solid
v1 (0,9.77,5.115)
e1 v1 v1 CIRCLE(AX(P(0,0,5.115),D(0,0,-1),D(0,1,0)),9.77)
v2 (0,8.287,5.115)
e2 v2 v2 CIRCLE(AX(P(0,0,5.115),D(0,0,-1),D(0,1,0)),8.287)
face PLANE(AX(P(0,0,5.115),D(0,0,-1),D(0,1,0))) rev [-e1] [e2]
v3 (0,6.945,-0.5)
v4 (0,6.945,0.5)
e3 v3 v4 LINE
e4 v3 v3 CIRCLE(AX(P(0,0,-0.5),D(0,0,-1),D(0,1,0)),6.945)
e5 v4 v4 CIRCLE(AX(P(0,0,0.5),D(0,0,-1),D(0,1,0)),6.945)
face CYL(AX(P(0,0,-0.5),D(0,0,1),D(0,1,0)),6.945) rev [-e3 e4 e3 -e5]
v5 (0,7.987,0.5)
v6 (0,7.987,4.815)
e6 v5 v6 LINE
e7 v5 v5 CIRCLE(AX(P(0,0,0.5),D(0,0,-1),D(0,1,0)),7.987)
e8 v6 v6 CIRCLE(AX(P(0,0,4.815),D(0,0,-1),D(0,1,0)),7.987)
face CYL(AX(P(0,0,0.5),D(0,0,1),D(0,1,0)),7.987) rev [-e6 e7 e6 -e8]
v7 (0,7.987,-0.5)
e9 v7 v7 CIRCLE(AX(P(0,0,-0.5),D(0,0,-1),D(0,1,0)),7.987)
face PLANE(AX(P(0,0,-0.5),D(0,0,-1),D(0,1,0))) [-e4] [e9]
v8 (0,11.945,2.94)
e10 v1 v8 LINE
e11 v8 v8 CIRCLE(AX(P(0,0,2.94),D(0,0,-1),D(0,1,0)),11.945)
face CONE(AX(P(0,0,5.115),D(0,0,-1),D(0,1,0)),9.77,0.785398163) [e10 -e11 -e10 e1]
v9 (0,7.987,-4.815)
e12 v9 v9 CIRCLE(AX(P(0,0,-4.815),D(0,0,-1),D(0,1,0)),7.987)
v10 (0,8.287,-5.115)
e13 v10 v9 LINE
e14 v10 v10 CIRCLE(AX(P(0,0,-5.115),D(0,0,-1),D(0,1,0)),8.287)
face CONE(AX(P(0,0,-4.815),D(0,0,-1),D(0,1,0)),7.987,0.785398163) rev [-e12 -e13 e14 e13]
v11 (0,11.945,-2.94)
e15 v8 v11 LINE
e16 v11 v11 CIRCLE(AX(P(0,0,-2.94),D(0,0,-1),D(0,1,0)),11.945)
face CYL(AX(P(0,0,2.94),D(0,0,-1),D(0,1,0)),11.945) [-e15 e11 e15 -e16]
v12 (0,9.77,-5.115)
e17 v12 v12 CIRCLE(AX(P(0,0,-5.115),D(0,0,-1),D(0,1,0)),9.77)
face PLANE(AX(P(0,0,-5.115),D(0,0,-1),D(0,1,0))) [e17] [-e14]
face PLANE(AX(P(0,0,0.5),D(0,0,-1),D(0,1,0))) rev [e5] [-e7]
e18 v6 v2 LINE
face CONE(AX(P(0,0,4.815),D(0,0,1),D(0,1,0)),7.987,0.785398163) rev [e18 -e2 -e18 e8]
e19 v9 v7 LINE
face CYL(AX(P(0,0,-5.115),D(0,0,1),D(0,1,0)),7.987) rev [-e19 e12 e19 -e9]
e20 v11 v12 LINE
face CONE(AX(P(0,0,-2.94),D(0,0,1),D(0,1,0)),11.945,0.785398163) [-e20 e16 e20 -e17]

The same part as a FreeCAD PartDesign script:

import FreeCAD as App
import Part
import Sketcher

V = App.Vector


def edges_at(feature, points):
    """Names of the edges that pass closest to the given points."""
    edges = feature.Shape.Edges
    near = lambda p: min(range(len(edges)), key=lambda i: edges[i].distToShape(Part.Vertex(*p))[0])
    return sorted({f"Edge{near(p) + 1}" for p in points})

doc = App.newDocument("Part")
body = doc.addObject("PartDesign::Body", "Body")

sketch1 = doc.addObject("Sketcher::SketchObject", "Sketch")
body.addObject(sketch1)
sketch1.AttachmentSupport = (doc.YZ_Plane, [""])
sketch1.MapMode = "FlatFace"
sketch1.addGeometry([
    Part.LineSegment(V(11.9, -2.9, 0), V(11.9, 2.9, 0)),
    Part.LineSegment(V(11.9, 2.9, 0), V(9.8, 5.1, 0)),
    Part.LineSegment(V(9.8, 5.1, 0), V(8, 5.1, 0)),
    Part.LineSegment(V(8, 5.1, 0), V(8, 0.5, 0)),
    Part.LineSegment(V(8, 0.5, 0), V(6.9, 0.5, 0)),
    Part.LineSegment(V(6.9, 0.5, 0), V(6.9, -0.5, 0)),
    Part.LineSegment(V(6.9, -0.5, 0), V(8, -0.5, 0)),
    Part.LineSegment(V(8, -0.5, 0), V(8, -5.1, 0)),
    Part.LineSegment(V(8, -5.1, 0), V(9.8, -5.1, 0)),
    Part.LineSegment(V(9.8, -5.1, 0), V(11.9, -2.9, 0)),
], False)
sketch1.addConstraint([
    Sketcher.Constraint("Coincident", 0, 2, 1, 1),
    Sketcher.Constraint("Coincident", 1, 2, 2, 1),
    Sketcher.Constraint("Coincident", 2, 2, 3, 1),
    Sketcher.Constraint("Coincident", 3, 2, 4, 1),
    Sketcher.Constraint("Coincident", 4, 2, 5, 1),
    Sketcher.Constraint("Coincident", 5, 2, 6, 1),
    Sketcher.Constraint("Coincident", 6, 2, 7, 1),
    Sketcher.Constraint("Coincident", 7, 2, 8, 1),
    Sketcher.Constraint("Coincident", 8, 2, 9, 1),
    Sketcher.Constraint("Coincident", 9, 2, 0, 1),
    Sketcher.Constraint("Vertical", 0),
    Sketcher.Constraint("Horizontal", 2),
    Sketcher.Constraint("Vertical", 3),
    Sketcher.Constraint("Horizontal", 4),
    Sketcher.Constraint("Vertical", 5),
    Sketcher.Constraint("Horizontal", 6),
    Sketcher.Constraint("Vertical", 7),
    Sketcher.Constraint("Horizontal", 8),
    Sketcher.Constraint("Symmetric", 3, 2, 6, 2, -1),
    Sketcher.Constraint("Symmetric", 1, 2, 8, 2, -1),
    Sketcher.Constraint("Perpendicular", 1, 9),
    Sketcher.Constraint("Equal", 1, 9),
    Sketcher.Constraint("DistanceY", 5, 2, 5, 1, 1.0),
    Sketcher.Constraint("DistanceX", 4, 2, 0, 2, 5.0),
    Sketcher.Constraint("DistanceY", 0, 1, 0, 2, 5.88),
    Sketcher.Constraint("DistanceX", 2, 2, 2, 1, 1.783),
    Sketcher.Constraint("DistanceX", 4, 2, 4, 1, 1.042),
    Sketcher.Constraint("DistanceX", -1, 1, 1, 2, 9.77),
])
revolution = doc.addObject("PartDesign::Revolution", "Revolution")
body.addObject(revolution)
revolution.Profile = sketch1
revolution.ReferenceAxis = (sketch1, ["V_Axis"])
revolution.Angle = 360
doc.recompute()

chamfer = doc.addObject("PartDesign::Chamfer", "Chamfer")
body.addObject(chamfer)
chamfer.Base = (revolution, edges_at(revolution, [(0, -7.987, 5.115), (0, -7.987, -5.115)]))
chamfer.Size = 0.3

doc.recompute()
